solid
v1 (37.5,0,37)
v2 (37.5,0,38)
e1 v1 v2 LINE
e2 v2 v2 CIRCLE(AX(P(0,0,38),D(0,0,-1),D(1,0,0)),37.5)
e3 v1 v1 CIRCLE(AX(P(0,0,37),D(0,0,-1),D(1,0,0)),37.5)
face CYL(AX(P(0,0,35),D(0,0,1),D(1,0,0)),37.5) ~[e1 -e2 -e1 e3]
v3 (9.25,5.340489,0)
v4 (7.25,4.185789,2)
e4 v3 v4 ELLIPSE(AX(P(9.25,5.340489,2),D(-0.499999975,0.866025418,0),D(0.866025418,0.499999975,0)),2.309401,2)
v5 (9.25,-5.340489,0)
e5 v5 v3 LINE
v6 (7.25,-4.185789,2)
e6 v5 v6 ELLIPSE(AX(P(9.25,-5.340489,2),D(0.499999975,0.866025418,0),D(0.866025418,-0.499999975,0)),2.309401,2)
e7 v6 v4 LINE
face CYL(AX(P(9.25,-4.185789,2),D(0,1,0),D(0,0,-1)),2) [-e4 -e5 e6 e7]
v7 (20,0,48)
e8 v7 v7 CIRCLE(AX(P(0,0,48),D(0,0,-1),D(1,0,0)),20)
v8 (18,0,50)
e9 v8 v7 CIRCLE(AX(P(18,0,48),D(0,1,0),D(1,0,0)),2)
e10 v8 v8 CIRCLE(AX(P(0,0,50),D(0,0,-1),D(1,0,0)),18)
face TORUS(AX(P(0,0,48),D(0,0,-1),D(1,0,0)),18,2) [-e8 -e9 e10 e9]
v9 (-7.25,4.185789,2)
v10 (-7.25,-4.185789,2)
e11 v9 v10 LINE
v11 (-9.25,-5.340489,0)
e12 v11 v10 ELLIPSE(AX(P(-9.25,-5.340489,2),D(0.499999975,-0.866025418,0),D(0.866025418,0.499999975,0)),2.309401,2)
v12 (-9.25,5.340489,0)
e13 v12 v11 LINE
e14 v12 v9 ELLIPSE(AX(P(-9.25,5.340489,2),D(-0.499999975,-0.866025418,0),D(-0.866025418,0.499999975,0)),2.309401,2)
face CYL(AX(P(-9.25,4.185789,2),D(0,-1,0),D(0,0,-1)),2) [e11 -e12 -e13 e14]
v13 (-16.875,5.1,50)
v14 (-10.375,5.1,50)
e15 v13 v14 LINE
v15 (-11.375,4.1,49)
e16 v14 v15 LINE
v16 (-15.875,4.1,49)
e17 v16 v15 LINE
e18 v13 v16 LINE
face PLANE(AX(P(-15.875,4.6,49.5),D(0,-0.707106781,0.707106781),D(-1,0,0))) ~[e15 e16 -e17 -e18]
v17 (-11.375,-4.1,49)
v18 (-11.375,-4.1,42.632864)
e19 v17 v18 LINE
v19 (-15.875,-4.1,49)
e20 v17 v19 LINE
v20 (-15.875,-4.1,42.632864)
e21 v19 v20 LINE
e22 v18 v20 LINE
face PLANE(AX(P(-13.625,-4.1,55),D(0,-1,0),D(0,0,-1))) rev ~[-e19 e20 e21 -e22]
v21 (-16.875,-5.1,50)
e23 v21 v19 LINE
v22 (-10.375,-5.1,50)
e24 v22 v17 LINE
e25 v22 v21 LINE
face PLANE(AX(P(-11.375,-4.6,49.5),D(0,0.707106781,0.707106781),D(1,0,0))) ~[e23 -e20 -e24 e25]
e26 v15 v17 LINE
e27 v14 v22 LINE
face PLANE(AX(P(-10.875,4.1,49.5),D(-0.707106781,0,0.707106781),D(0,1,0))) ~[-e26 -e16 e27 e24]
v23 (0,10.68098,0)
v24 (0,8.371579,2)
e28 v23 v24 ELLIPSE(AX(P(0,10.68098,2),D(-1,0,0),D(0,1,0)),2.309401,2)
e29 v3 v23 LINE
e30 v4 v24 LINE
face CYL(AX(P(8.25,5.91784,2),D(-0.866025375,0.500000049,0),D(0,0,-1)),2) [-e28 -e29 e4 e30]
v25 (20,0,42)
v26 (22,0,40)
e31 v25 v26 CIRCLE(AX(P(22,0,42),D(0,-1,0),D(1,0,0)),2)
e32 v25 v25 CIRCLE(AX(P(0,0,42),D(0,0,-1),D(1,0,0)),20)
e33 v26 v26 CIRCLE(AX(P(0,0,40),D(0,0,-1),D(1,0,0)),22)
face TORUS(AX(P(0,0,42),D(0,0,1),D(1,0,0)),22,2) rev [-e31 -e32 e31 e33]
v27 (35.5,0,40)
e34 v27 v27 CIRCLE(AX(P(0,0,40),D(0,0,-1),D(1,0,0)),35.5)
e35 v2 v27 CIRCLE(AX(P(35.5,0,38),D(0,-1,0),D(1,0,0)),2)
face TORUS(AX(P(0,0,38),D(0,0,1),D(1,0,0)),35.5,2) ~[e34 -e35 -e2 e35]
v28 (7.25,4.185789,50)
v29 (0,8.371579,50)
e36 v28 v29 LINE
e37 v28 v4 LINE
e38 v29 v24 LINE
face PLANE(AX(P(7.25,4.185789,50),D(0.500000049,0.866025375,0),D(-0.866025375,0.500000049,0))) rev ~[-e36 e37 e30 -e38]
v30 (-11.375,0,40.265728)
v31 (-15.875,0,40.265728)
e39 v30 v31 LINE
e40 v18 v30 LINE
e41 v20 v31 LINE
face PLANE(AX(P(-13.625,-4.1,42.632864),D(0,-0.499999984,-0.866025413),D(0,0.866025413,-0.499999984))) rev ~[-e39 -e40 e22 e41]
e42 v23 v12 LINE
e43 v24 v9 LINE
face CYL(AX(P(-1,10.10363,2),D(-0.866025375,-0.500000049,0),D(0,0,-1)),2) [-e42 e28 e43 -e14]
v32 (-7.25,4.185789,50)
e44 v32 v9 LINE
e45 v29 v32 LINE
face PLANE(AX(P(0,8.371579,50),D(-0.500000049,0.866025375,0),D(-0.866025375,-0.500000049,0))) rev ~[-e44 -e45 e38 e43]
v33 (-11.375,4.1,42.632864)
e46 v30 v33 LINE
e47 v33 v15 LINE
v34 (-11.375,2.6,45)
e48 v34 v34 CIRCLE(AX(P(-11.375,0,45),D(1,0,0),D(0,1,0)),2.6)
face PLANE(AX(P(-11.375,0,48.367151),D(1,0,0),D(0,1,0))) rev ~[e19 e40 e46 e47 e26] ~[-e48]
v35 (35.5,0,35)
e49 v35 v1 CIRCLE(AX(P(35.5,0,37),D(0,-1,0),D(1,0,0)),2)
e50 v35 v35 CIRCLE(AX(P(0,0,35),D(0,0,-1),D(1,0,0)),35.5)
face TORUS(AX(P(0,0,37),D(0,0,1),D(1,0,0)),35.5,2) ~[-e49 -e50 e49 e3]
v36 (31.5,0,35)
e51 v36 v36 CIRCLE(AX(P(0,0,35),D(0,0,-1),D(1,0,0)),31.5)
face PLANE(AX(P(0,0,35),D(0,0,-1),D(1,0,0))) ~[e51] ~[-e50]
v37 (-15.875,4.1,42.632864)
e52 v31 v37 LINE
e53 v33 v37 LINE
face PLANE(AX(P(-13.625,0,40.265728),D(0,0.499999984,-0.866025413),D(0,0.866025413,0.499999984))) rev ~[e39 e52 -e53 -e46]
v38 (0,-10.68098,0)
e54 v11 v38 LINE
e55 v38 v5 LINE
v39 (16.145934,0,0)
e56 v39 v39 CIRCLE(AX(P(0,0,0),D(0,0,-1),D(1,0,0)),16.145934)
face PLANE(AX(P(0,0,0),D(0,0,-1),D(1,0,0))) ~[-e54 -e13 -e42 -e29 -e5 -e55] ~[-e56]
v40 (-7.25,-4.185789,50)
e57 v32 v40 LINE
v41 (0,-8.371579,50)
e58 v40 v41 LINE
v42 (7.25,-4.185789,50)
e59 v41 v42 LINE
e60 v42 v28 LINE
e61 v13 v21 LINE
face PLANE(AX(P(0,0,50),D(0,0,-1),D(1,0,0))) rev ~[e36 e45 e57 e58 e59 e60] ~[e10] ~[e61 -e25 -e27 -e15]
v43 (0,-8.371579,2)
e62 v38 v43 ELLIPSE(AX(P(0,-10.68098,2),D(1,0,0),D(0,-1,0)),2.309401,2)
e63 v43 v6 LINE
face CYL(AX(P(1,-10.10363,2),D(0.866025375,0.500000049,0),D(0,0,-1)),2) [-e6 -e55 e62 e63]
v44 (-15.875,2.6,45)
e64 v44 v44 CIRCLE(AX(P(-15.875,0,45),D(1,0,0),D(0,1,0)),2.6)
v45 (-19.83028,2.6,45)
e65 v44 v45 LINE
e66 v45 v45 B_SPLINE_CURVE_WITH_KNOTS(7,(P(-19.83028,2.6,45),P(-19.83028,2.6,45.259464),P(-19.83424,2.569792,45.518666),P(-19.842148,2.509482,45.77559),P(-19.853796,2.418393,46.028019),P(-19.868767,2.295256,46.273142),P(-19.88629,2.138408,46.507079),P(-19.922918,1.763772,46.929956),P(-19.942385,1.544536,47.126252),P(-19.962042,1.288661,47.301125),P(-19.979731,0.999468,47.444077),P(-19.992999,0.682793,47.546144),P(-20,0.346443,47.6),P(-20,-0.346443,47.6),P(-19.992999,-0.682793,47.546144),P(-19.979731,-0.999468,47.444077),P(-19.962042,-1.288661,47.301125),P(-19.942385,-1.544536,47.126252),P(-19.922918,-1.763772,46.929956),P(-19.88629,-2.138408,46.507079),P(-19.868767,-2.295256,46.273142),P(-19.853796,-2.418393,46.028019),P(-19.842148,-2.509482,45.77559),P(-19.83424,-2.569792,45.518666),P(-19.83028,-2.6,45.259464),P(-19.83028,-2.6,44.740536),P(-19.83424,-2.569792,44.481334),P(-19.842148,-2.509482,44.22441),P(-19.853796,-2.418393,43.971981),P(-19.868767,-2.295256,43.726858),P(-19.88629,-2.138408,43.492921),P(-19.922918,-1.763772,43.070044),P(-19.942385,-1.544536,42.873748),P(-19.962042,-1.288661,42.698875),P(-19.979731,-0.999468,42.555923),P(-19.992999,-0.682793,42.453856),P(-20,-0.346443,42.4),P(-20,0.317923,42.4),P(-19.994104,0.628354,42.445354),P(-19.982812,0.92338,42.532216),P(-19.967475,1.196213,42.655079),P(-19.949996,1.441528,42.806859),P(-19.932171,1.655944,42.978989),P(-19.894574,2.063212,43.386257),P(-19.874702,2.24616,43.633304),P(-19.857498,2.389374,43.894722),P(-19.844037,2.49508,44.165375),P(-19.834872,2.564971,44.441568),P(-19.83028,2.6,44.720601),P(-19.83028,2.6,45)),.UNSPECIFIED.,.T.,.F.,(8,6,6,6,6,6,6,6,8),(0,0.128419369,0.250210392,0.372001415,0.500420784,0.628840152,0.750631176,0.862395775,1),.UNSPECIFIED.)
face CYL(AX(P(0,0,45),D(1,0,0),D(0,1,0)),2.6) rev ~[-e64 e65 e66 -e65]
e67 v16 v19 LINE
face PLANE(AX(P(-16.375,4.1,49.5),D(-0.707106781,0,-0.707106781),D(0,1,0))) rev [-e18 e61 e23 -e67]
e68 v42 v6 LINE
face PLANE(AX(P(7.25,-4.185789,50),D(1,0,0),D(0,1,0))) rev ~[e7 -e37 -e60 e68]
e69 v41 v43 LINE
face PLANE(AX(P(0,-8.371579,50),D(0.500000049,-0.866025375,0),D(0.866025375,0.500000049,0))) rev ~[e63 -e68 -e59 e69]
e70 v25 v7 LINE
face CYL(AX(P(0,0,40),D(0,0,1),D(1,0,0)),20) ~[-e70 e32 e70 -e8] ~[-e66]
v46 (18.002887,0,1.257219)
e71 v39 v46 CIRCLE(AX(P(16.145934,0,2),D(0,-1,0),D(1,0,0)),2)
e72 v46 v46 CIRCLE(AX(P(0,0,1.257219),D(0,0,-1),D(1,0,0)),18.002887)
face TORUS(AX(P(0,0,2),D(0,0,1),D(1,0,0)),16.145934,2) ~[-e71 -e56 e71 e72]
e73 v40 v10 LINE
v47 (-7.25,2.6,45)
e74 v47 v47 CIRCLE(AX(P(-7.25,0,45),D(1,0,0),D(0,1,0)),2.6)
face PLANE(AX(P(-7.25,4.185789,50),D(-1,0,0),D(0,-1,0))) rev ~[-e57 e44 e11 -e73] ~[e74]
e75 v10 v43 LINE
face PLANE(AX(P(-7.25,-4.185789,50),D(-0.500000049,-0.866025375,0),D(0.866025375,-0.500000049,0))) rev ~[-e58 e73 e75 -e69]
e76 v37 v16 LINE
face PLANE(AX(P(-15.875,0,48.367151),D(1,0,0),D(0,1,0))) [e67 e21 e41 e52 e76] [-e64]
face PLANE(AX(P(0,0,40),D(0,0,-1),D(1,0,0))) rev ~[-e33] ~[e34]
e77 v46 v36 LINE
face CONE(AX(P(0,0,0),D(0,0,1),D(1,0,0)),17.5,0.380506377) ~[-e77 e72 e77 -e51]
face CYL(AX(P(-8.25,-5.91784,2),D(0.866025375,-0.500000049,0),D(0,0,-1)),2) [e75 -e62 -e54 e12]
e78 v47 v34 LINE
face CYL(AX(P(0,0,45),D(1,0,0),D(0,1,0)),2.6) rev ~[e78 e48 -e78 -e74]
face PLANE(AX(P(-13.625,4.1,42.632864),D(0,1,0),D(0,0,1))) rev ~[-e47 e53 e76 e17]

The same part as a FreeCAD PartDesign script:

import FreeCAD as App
import Part
import Sketcher
Q = App.Units.Quantity


def edges_at(feature, points):
    """Names of the edges that pass closest to the given points."""
    edges = feature.Shape.Edges
    near = lambda p: min(range(len(edges)), key=lambda i: edges[i].distToShape(Part.Vertex(*p))[0])
    return sorted({f"Edge{near(p) + 1}" for p in points})


def add_polygon(sketch, points):
    """Adds a closed chain of lines whose ends are joined by coincident constraints."""
    first, n = sketch.GeometryCount, len(points)
    for a, b in zip(points, points[1:] + points[:1]):
        sketch.addGeometry(Part.LineSegment(App.Vector(*a, 0), App.Vector(*b, 0)), False)
    for i in range(n):
        sketch.addConstraint(Sketcher.Constraint("Coincident", first + i, 2, first + (i + 1) % n, 1))

doc = App.newDocument("Part")
params = doc.addObject("Spreadsheet::Sheet", "Params")
for row, (alias, value) in enumerate([
    ("sketch1_width", "6 mm"),
    ("sketch1_width2", "20 mm"),
    ("sketch1_height", "5 mm"),
    ("sketch1_height2", "10 mm"),
    ("sketch1_height3", "50 mm"),
    ("revolution_angle", "360 deg"),
    ("sketch3_diameter", "5.2 mm"),
    ("sketch4_width", "8.2 mm"),
    ("pocket3_length", "4.5 mm"),
    ("fillet_radius", "2 mm"),
    ("chamfer_size", "1 mm"),
], start=1):
    params.set(f"A{row}", alias)
    params.set(f"B{row}", "=" + value)
    params.setAlias(f"B{row}", alias)

body = doc.addObject("PartDesign::Body", "Body")

sketch1 = doc.addObject("Sketcher::SketchObject", "Sketch")
body.addObject(sketch1)
sketch1.AttachmentSupport = (doc.XZ_Plane, [""])
sketch1.MapMode = "FlatFace"
add_polygon(sketch1, [(0, 0), (18, 0), (32, 35), (38, 35), (38, 40), (20, 40), (20, 50), (0, 50)])
sketch1.addConstraint(Sketcher.Constraint("Horizontal", 0))
sketch1.addConstraint(Sketcher.Constraint("Horizontal", 2))
sketch1.addConstraint(Sketcher.Constraint("Vertical", 3))
sketch1.addConstraint(Sketcher.Constraint("Horizontal", 4))
sketch1.addConstraint(Sketcher.Constraint("Vertical", 5))
sketch1.addConstraint(Sketcher.Constraint("Horizontal", 6))
sketch1.addConstraint(Sketcher.Constraint("Vertical", 7))
sketch1.addConstraint(Sketcher.Constraint("Coincident", 7, 2, -1, 1))
sketch1.addConstraint(Sketcher.Constraint("Equal", 0, 4))
sketch1.addConstraint(Sketcher.Constraint("DistanceX", 2, 1, 2, 2, 6.0))
sketch1.addConstraint(Sketcher.Constraint("DistanceX", 6, 2, 6, 1, 20.0))
sketch1.addConstraint(Sketcher.Constraint("DistanceY", 3, 1, 3, 2, 5.0))
sketch1.addConstraint(Sketcher.Constraint("DistanceY", 5, 1, 5, 2, 10.0))
sketch1.addConstraint(Sketcher.Constraint("DistanceY", 7, 2, 7, 1, 50.0))
sketch1.addConstraint(Sketcher.Constraint("DistanceX", 0, 1, 0, 2, 17.5))
sketch1.setExpression("Constraints[17]", "Params.sketch1_width")
sketch1.setExpression("Constraints[18]", "Params.sketch1_width2")
sketch1.setExpression("Constraints[19]", "Params.sketch1_height")
sketch1.setExpression("Constraints[20]", "Params.sketch1_height2")
sketch1.setExpression("Constraints[21]", "Params.sketch1_height3")
revolution = doc.addObject("PartDesign::Revolution", "Revolution")
body.addObject(revolution)
revolution.Profile = sketch1
revolution.ReferenceAxis = (sketch1, ["V_Axis"])
revolution.setExpression("Angle", "Params.revolution_angle")

sketch2 = doc.addObject("Sketcher::SketchObject", "Sketch001")
body.addObject(sketch2)
sketch2.AttachmentSupport = (doc.XY_Plane, [""])
sketch2.MapMode = "FlatFace"
sketch2.AttachmentOffset = App.Placement(App.Vector(0, 0, 50), App.Rotation())
add_polygon(sketch2, [(0, -8), (7, -4), (7, 4), (0, 8), (-7, 4), (-7, -4)])
sketch2.addConstraint(Sketcher.Constraint("Vertical", 1))
sketch2.addConstraint(Sketcher.Constraint("Vertical", 4))
sketch2.addConstraint(Sketcher.Constraint("Symmetric", 0, 2, 3, 2, -1, 1))
sketch2.addConstraint(Sketcher.Constraint("Symmetric", 2, 2, 5, 2, -1, 1))
sketch2.addConstraint(Sketcher.Constraint("PointOnObject", 2, 2, -2))
sketch2.addConstraint(Sketcher.Constraint("Parallel", 2, 5))
sketch2.addConstraint(Sketcher.Constraint("Horizontal", 1, 2, 3, 2))
sketch2.addConstraint(Sketcher.Constraint("Angle", 0, Q("30.000003 deg")))
sketch2.addConstraint(Sketcher.Constraint("DistanceX", 3, 2, 1, 2, 14.5))
sketch2.addConstraint(Sketcher.Constraint("DistanceY", 1, 1, 1, 2, 8.371578))
pocket1 = doc.addObject("PartDesign::Pocket", "Pocket")
body.addObject(pocket1)
pocket1.Profile = sketch2
pocket1.Type = "ThroughAll"

sketch3 = doc.addObject("Sketcher::SketchObject", "Sketch002")
body.addObject(sketch3)
sketch3.AttachmentSupport = (doc.YZ_Plane, [""])
sketch3.MapMode = "FlatFace"
sketch3.addGeometry(Part.Circle(App.Vector(0, 45, 0), App.Vector(0, 0, 1), 2.6), False)
sketch3.addConstraint(Sketcher.Constraint("PointOnObject", 0, 3, -2))
sketch3.addConstraint(Sketcher.Constraint("Diameter", 0, 5.2))
sketch3.addConstraint(Sketcher.Constraint("DistanceY", -1, 1, 0, 3, 45.0))
sketch3.setExpression("Constraints[1]", "Params.sketch3_diameter")
pocket2 = doc.addObject("PartDesign::Pocket", "Pocket001")
body.addObject(pocket2)
pocket2.Profile = sketch3
pocket2.Type = "ThroughAll"

sketch4 = doc.addObject("Sketcher::SketchObject", "Sketch003")
body.addObject(sketch4)
sketch4.AttachmentSupport = (doc.YZ_Plane, [""])
sketch4.MapMode = "FlatFace"
sketch4.AttachmentOffset = App.Placement(App.Vector(0, 0, -13.625), App.Rotation())
add_polygon(sketch4, [(4.1, 42.6), (4.1, 55), (-4.1, 55), (-4.1, 42.6), (0, 40.3)])
sketch4.addConstraint(Sketcher.Constraint("Vertical", 0))
sketch4.addConstraint(Sketcher.Constraint("Horizontal", 1))
sketch4.addConstraint(Sketcher.Constraint("Vertical", 2))
sketch4.addConstraint(Sketcher.Constraint("Symmetric", 2, 2, 4, 2, -2))
sketch4.addConstraint(Sketcher.Constraint("PointOnObject", 3, 2, -2))
sketch4.addConstraint(Sketcher.Constraint("Angle", 3, Q("-29.999999 deg")))
sketch4.addConstraint(Sketcher.Constraint("DistanceX", 1, 2, 1, 1, 8.2))
sketch4.addConstraint(Sketcher.Constraint("DistanceY", -1, 1, 0, 2, 55.0))
sketch4.addConstraint(Sketcher.Constraint("DistanceY", 0, 1, 0, 2, 12.367136))
sketch4.setExpression("Constraints[11]", "Params.sketch4_width")
pocket3 = doc.addObject("PartDesign::Pocket", "Pocket002")
body.addObject(pocket3)
pocket3.Profile = sketch4
pocket3.setExpression("Length", "Params.pocket3_length")
pocket3.Midplane = True
doc.recompute()

fillet = doc.addObject("PartDesign::Fillet", "Fillet")
body.addObject(fillet)
fillet.Base = (pocket3, edges_at(pocket3, [
    (-20, 0, 50),
    (-20, 0, 40),
    (-37.5, 0, 40),
    (-37.5, 0, 35),
    (-17.5, 0, 0),
    (-3.625, -6.279, 0),
    (3.625, -6.279, 0),
    (7.25, 0, 0),
    (3.625, 6.279, 0),
    (-3.625, 6.279, 0),
    (-7.25, 0, 0),
]))
fillet.setExpression("Radius", "Params.fillet_radius")
doc.recompute()

chamfer = doc.addObject("PartDesign::Chamfer", "Chamfer")
body.addObject(chamfer)
chamfer.Base = (fillet, edges_at(fillet, [
    (-13.625, 4.1, 50),
    (-11.375, 0, 50),
    (-13.625, -4.1, 50),
    (-15.875, 0, 50),
]))
chamfer.setExpression("Size", "Params.chamfer_size")

doc.recompute()
